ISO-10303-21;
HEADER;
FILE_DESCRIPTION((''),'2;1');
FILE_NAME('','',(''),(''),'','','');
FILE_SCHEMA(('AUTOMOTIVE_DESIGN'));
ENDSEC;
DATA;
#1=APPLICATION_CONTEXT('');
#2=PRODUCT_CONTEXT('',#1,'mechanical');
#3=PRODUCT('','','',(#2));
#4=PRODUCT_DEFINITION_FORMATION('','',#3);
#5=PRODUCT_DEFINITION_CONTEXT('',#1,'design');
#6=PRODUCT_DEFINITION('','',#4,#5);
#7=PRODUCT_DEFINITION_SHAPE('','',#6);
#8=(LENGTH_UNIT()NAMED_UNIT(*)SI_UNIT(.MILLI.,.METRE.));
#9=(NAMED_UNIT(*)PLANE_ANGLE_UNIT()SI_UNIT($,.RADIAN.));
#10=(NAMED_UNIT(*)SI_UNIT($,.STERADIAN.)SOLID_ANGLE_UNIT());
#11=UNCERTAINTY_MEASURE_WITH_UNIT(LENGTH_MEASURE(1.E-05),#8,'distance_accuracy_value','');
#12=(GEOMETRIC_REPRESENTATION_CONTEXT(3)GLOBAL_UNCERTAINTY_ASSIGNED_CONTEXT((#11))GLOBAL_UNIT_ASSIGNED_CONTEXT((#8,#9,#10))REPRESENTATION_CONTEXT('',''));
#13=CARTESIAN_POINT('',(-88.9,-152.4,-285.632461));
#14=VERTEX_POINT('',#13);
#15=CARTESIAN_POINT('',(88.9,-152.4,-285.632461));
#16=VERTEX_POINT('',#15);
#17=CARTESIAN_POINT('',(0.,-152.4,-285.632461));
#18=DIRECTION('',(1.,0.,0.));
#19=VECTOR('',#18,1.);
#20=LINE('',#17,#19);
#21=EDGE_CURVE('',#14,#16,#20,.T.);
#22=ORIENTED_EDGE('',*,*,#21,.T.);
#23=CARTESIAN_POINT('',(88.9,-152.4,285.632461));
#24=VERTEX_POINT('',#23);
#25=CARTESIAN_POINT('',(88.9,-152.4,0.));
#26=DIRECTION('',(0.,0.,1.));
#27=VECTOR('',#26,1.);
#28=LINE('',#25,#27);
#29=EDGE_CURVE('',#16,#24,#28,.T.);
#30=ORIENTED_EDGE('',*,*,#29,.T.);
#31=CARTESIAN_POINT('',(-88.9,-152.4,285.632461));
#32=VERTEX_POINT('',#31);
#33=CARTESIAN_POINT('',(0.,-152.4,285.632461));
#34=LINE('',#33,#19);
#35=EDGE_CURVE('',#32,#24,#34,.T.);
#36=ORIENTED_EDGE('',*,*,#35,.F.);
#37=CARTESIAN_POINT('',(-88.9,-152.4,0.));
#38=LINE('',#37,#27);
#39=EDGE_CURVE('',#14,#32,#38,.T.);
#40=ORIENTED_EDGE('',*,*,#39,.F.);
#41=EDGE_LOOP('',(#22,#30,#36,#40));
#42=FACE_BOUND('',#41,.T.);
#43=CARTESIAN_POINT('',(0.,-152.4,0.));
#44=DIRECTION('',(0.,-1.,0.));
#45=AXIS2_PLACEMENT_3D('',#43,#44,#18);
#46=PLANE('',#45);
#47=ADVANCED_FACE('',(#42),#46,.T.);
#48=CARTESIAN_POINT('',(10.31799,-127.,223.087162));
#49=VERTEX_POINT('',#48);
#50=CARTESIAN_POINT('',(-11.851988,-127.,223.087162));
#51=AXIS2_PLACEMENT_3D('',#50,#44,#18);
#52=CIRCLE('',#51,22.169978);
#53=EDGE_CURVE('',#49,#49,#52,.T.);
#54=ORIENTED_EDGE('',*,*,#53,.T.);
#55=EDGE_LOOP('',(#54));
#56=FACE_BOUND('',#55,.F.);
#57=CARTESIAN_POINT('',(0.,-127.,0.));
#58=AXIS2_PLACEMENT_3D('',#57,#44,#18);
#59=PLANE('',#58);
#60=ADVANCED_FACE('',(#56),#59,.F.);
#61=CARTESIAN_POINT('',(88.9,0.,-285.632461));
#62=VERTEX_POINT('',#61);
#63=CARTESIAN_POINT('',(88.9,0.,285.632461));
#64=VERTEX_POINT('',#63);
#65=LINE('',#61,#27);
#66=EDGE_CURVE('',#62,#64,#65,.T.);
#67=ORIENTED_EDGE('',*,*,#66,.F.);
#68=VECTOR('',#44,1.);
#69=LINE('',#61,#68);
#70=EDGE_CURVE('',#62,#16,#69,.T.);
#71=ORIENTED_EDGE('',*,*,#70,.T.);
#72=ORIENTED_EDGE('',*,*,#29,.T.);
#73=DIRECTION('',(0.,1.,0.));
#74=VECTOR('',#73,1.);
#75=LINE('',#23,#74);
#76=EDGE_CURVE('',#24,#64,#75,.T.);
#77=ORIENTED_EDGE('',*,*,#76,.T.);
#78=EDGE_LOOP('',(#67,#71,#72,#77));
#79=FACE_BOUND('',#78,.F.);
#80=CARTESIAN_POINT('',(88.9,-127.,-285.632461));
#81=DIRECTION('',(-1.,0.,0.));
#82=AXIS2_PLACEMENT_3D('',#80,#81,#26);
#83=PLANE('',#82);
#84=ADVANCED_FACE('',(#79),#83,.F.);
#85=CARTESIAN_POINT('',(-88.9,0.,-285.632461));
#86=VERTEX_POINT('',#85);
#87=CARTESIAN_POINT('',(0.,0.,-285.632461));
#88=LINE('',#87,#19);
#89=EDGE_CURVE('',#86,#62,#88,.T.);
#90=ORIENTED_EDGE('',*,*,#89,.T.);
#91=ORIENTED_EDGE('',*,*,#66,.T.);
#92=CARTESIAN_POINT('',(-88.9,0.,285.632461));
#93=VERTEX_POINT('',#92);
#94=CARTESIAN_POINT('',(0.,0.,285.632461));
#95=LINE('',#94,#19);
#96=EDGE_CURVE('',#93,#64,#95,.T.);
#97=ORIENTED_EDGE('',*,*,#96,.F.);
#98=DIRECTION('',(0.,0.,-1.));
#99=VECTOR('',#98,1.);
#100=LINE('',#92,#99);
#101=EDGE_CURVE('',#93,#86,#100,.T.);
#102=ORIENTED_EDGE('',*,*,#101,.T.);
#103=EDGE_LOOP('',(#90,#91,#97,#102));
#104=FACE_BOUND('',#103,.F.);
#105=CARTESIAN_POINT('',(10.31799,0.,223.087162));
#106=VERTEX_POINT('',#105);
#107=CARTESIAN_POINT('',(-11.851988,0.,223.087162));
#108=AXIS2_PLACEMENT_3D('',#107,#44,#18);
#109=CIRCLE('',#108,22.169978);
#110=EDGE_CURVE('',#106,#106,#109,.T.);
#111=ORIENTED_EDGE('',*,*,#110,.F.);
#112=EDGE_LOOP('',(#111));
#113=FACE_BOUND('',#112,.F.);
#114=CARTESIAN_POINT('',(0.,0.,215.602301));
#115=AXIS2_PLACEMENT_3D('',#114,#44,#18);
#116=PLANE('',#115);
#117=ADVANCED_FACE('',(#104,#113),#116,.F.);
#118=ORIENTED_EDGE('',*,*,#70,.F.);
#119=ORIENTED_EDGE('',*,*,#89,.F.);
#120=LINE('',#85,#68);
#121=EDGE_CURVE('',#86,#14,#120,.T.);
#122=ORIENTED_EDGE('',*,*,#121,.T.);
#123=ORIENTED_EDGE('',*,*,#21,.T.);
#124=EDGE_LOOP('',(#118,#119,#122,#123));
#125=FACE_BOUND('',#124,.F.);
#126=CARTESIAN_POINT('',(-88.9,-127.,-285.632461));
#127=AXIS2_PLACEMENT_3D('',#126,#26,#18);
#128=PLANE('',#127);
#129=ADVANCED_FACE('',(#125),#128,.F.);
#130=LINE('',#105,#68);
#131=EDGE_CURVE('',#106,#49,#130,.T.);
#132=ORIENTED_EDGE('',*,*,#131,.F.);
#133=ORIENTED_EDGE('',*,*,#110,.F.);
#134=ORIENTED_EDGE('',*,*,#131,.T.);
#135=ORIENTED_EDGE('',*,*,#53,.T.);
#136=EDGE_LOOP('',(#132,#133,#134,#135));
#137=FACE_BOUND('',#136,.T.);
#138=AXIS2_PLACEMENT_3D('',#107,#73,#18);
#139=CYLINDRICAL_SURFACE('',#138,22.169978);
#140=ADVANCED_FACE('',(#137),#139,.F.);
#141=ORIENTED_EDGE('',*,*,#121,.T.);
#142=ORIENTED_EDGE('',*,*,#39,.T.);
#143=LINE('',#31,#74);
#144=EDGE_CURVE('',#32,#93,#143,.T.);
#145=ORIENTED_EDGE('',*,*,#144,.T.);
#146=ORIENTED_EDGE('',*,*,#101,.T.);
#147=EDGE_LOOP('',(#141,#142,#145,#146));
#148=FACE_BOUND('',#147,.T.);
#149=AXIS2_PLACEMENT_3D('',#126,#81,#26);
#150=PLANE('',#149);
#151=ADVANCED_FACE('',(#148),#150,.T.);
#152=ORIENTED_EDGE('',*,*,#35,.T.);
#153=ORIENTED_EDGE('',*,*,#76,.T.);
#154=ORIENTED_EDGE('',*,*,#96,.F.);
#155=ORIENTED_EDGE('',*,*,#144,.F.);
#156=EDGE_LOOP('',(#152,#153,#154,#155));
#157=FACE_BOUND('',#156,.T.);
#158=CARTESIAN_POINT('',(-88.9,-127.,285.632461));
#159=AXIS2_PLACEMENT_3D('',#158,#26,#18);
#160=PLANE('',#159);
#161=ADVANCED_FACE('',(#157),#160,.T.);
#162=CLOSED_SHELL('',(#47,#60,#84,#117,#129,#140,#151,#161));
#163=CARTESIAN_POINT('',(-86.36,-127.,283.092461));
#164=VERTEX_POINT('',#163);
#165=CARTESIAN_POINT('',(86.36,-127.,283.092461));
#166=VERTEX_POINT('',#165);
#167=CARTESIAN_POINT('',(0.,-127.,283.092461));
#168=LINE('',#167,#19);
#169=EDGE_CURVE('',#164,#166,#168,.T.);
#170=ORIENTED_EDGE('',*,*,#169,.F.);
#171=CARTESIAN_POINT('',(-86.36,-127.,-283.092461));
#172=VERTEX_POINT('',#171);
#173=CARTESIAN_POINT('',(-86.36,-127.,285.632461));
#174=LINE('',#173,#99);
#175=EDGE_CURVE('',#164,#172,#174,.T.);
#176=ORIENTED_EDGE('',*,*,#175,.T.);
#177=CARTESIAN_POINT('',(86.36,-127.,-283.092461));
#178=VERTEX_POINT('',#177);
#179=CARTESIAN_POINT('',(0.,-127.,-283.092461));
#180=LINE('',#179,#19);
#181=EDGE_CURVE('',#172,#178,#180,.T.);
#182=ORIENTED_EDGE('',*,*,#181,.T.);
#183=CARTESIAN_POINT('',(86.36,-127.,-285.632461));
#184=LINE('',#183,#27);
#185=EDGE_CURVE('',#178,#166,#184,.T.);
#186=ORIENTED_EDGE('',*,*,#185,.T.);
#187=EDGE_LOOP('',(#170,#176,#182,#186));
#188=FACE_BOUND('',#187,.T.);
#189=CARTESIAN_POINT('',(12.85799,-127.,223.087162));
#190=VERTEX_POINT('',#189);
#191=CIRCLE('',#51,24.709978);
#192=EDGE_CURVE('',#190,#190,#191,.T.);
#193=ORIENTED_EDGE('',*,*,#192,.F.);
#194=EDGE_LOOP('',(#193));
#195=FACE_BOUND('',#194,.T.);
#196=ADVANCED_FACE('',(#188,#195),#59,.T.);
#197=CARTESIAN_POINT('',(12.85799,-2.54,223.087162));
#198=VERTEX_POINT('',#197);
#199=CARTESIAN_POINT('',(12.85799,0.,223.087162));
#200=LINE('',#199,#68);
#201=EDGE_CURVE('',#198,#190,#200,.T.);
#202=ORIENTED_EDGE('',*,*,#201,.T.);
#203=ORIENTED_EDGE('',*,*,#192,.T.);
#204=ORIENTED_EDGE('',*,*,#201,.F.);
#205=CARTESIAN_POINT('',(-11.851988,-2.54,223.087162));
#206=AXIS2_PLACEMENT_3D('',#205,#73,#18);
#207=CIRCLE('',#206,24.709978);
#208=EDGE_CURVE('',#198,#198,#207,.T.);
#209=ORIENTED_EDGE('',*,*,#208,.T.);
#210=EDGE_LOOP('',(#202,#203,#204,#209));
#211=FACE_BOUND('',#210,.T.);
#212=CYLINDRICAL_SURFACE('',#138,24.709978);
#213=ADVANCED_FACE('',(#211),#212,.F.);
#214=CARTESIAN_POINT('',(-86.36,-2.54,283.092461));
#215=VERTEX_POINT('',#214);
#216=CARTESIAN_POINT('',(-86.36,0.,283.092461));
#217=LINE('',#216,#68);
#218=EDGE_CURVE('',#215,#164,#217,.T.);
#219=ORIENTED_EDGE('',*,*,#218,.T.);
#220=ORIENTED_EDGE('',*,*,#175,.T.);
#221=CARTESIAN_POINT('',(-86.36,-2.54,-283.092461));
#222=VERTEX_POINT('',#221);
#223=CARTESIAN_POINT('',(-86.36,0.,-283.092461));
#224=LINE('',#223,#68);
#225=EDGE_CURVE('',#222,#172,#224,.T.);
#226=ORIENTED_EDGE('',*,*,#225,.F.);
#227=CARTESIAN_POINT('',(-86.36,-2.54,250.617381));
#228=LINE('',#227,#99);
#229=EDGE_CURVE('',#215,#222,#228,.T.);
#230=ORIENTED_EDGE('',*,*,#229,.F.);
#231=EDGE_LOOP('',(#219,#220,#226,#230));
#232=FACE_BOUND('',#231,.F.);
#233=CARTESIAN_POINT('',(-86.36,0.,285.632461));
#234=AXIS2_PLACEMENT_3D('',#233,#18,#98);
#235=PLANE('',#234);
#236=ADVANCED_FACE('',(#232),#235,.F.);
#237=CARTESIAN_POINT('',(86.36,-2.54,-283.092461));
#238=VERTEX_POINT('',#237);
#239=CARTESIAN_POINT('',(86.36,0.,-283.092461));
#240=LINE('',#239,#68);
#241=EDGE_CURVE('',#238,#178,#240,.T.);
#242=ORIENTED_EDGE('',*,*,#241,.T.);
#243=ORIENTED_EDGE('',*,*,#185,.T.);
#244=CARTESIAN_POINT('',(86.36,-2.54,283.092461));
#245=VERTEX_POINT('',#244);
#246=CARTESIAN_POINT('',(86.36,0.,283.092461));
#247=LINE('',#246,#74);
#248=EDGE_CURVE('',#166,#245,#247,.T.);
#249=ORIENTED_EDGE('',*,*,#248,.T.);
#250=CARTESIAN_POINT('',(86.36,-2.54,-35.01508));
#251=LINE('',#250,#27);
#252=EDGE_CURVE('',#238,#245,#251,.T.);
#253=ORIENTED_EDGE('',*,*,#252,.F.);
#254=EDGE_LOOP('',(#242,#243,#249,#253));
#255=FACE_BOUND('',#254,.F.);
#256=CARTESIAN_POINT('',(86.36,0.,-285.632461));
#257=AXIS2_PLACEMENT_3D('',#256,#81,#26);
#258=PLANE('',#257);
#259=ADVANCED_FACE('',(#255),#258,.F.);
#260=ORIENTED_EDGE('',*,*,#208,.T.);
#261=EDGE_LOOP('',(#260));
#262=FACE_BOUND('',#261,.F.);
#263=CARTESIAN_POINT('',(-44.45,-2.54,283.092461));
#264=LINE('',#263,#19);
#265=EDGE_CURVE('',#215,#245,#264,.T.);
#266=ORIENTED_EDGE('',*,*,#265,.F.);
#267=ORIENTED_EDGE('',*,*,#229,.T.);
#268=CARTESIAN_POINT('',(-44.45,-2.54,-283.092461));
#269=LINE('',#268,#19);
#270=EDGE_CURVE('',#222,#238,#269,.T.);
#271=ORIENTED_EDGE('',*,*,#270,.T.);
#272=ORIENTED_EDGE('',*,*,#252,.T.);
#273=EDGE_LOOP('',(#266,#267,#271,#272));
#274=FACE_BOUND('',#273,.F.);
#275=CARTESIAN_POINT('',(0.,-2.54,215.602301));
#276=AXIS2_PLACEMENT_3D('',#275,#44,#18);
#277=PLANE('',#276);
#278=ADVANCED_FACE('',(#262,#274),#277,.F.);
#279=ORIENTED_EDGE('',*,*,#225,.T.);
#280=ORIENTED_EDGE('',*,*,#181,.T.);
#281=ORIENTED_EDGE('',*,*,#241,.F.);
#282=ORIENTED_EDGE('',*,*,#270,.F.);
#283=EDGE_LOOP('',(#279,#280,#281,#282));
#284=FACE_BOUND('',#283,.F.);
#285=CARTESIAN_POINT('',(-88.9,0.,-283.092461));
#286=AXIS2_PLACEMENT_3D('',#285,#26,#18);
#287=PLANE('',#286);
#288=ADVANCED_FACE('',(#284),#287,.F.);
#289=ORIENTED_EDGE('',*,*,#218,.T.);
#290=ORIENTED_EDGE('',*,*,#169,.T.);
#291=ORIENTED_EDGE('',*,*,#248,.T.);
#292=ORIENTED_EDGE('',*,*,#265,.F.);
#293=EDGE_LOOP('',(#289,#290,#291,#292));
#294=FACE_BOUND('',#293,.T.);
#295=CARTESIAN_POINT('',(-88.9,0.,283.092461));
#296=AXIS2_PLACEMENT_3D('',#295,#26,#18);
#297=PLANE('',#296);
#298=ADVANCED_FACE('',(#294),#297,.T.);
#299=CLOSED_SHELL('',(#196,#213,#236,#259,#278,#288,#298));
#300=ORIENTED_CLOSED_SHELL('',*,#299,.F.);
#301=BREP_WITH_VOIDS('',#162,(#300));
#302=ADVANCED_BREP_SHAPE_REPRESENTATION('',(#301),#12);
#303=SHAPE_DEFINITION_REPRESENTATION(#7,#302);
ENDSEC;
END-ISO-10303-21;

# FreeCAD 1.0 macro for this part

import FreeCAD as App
import Part
import Sketcher

V = App.Vector
Q = App.Units.Quantity


def faces_at(feature, points):
    """Names of the faces that lie closest to the given points."""
    faces = feature.Shape.Faces
    near = lambda p: min(range(len(faces)), key=lambda i: faces[i].distToShape(Part.Vertex(*p))[0])
    return sorted({f"Face{near(p) + 1}" for p in points})

doc = App.newDocument("Part")
body = doc.addObject("PartDesign::Body", "Body")

sketch1 = body.newObject("Sketcher::SketchObject", "Sketch")
sketch1.AttachmentSupport = (doc.getObject("XZ_Plane"), [""])
sketch1.MapMode = "FlatFace"
sketch1.addGeometry([
    Part.LineSegment(V(-89, 286, 0), V(-89, -286, 0)),
    Part.LineSegment(V(-89, -286, 0), V(89, -286, 0)),
    Part.LineSegment(V(89, -286, 0), V(89, 286, 0)),
    Part.LineSegment(V(89, 286, 0), V(-89, 286, 0)),
    Part.Circle(V(-12, 223, 0), V(0, 0, 1), 22),
], False)
sketch1.addConstraint([
    Sketcher.Constraint("Coincident", 0, 2, 1, 1),
    Sketcher.Constraint("Coincident", 1, 2, 2, 1),
    Sketcher.Constraint("Coincident", 2, 2, 3, 1),
    Sketcher.Constraint("Coincident", 3, 2, 0, 1),
    Sketcher.Constraint("Vertical", 0),
    Sketcher.Constraint("Horizontal", 1),
    Sketcher.Constraint("Vertical", 2),
    Sketcher.Constraint("Horizontal", 3),
    Sketcher.Constraint("Symmetric", 0, 2, 2, 2, -1, 1),
    Sketcher.Constraint("DistanceX", 1, 1, 1, 2, Q("7 in")),
    Sketcher.Constraint("Diameter", 4, Q("44.339956 mm")),
    Sketcher.Constraint("DistanceY", 0, 2, 0, 1, Q("571.264922 mm")),
    Sketcher.Constraint("DistanceY", 4, 3, 2, 2, Q("62.545299 mm")),
    Sketcher.Constraint("DistanceX", 0, 2, 4, 3, Q("77.048012 mm")),
])
pad1 = body.newObject("PartDesign::Pad", "Pad")
pad1.Profile = sketch1
pad1.Length = Q("5 in")
doc.recompute()

thickness = body.newObject("PartDesign::Thickness", "Thickness")
thickness.Base = (pad1, faces_at(pad1, [(0, -127, 0)]))
thickness.Value = Q("0.1 in")
thickness.Reversed = True
thickness.Join = "Arc"

sketch2 = body.newObject("Sketcher::SketchObject", "Sketch001")
sketch2.AttachmentSupport = (doc.getObject("XZ_Plane"), [""])
sketch2.MapMode = "FlatFace"
sketch2.AttachmentOffset = App.Placement(V(0, 0, 5 * 25.4), App.Rotation())
sketch2.addGeometry([
    Part.LineSegment(V(-89, 286, 0), V(-89, -286, 0)),
    Part.LineSegment(V(-89, -286, 0), V(89, -286, 0)),
    Part.LineSegment(V(89, -286, 0), V(89, 286, 0)),
    Part.LineSegment(V(89, 286, 0), V(-89, 286, 0)),
], False)
sketch2.addConstraint([
    Sketcher.Constraint("Coincident", 0, 2, 1, 1),
    Sketcher.Constraint("Coincident", 1, 2, 2, 1),
    Sketcher.Constraint("Coincident", 2, 2, 3, 1),
    Sketcher.Constraint("Coincident", 3, 2, 0, 1),
    Sketcher.Constraint("Vertical", 0),
    Sketcher.Constraint("Horizontal", 1),
    Sketcher.Constraint("Vertical", 2),
    Sketcher.Constraint("Horizontal", 3),
    Sketcher.Constraint("Symmetric", 0, 2, 2, 2, -1, 1),
    Sketcher.Constraint("DistanceX", 1, 1, 1, 2, Q("7 in")),
    Sketcher.Constraint("DistanceY", 0, 2, 0, 1, Q("571.264922 mm")),
])
pad2 = body.newObject("PartDesign::Pad", "Pad001")
pad2.Profile = sketch2
pad2.Length = Q("1 in")

doc.recompute()
